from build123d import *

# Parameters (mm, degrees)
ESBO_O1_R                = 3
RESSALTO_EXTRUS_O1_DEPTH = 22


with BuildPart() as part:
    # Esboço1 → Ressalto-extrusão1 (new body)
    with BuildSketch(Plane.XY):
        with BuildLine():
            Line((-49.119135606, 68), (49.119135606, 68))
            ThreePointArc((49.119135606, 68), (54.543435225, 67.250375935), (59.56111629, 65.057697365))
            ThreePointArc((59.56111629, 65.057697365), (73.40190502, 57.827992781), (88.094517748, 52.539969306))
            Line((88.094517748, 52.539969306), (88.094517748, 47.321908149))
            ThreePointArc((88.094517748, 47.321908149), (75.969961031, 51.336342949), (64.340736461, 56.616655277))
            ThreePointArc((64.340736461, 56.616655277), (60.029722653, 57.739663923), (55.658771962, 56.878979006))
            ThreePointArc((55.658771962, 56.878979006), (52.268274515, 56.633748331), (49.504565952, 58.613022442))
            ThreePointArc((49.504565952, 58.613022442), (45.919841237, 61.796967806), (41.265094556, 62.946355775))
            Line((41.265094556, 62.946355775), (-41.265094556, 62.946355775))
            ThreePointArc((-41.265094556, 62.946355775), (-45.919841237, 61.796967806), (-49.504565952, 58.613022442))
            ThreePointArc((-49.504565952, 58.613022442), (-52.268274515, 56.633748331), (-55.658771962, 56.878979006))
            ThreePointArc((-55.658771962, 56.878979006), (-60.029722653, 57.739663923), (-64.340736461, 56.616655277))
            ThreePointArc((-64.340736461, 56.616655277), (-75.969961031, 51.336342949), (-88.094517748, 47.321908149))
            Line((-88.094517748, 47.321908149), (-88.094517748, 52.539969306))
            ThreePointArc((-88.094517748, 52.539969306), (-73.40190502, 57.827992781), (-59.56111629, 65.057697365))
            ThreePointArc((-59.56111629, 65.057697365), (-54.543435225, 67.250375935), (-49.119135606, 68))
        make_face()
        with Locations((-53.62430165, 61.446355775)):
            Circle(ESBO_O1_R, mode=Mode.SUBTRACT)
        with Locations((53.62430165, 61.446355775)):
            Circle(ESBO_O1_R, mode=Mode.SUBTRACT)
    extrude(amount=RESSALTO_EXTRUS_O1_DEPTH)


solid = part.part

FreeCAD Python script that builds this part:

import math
import FreeCAD as App
import Part
import Sketcher
from FreeCAD import Vector
Q = App.Units.Quantity

doc = App.newDocument("Part")
params = doc.addObject("Spreadsheet::Sheet", "Params")
for row, (alias, value) in enumerate([
    ("sketch1_diameter", "6 mm"),
    ("sketch1_radius", "20 mm"),
    ("sketch1_radius2", "115 mm"),
    ("sketch1_radius3", "120 mm"),
    ("sketch1_radius4", "10 mm"),
    ("pad1_length", "22 mm"),
], start=1):
    params.set(f"A{row}", alias)
    params.set(f"B{row}", "=" + value)
    params.setAlias(f"B{row}", alias)

body = doc.addObject("PartDesign::Body", "Body")

# Sketch on XY plane
sketch1 = body.newObject("Sketcher::SketchObject", "Sketch")
sketch1.AttachmentSupport = (doc.getObject("XY_Plane"), [""])
sketch1.MapMode = "FlatFace"
sketch1.addGeometry([
    Part.LineSegment(Vector(49.1, 68, 0), Vector(-49.1, 68, 0)),  # 0
    Part.ArcOfCircle(Part.Circle(Vector(-49.1, 48, 0), Vector(0, 0, 1), 20), math.radians(90), math.radians(121)),  # 1
    Part.ArcOfCircle(Part.Circle(Vector(-119.6, 163.1, 0), Vector(0, 0, 1), 115), math.radians(-74.1), math.radians(-58.53)),  # 2
    Part.LineSegment(Vector(-88.1, 52.5, 0), Vector(-88.1, 47.3, 0)),  # 3
    Part.ArcOfCircle(Part.Circle(Vector(-119.7, 163.1, 0), Vector(0, 0, 1), 120), math.radians(-74.73), math.radians(-62.53)),  # 4
    Part.ArcOfCircle(Part.Circle(Vector(-59.7, 47.7, 0), Vector(0, 0, 1), 10), math.radians(66), math.radians(117)),  # 5
    Part.ArcOfCircle(Part.Circle(Vector(-53.6, 61.4, 0), Vector(0, 0, 1), 5), math.radians(-114), math.radians(-35)),  # 6
    Part.ArcOfCircle(Part.Circle(Vector(-41.3, 52.9, 0), Vector(0, 0, 1), 10), math.radians(90), math.radians(145)),  # 7
    Part.LineSegment(Vector(-41.3, 62.9, 0), Vector(41.3, 62.9, 0)),  # 8
    Part.ArcOfCircle(Part.Circle(Vector(41.3, 52.9, 0), Vector(0, 0, 1), 10), math.radians(35), math.radians(90)),  # 9
    Part.ArcOfCircle(Part.Circle(Vector(53.6, 61.4, 0), Vector(0, 0, 1), 5), math.radians(-145), math.radians(-66)),  # 10
    Part.ArcOfCircle(Part.Circle(Vector(59.7, 47.7, 0), Vector(0, 0, 1), 10), math.radians(63), math.radians(114)),  # 11
    Part.ArcOfCircle(Part.Circle(Vector(119.7, 163.1, 0), Vector(0, 0, 1), 120), math.radians(-117.47), math.radians(-105.27)),  # 12
    Part.LineSegment(Vector(88.1, 47.3, 0), Vector(88.1, 52.5, 0)),  # 13
    Part.ArcOfCircle(Part.Circle(Vector(119.6, 163.1, 0), Vector(0, 0, 1), 115), math.radians(-121.47), math.radians(-105.9)),  # 14
    Part.ArcOfCircle(Part.Circle(Vector(49.1, 48, 0), Vector(0, 0, 1), 20), math.radians(59), math.radians(90)),  # 15
    Part.Circle(Vector(53.6, 61.4, 0), Vector(0, 0, 1), 3),  # 16
    Part.Circle(Vector(-53.6, 61.4, 0), Vector(0, 0, 1), 3),  # 17
], False)
sketch1.addConstraint([
    Sketcher.Constraint("Tangent", 0, 2, 1, 1),
    Sketcher.Constraint("Tangent", 1, 2, 2, 2),
    Sketcher.Constraint("Coincident", 2, 1, 3, 1),
    Sketcher.Constraint("Coincident", 3, 2, 4, 1),
    Sketcher.Constraint("Tangent", 4, 2, 5, 2),
    Sketcher.Constraint("Tangent", 5, 1, 6, 1),
    Sketcher.Constraint("Tangent", 6, 2, 7, 2),
    Sketcher.Constraint("Tangent", 7, 1, 8, 1),
    Sketcher.Constraint("Tangent", 8, 2, 9, 2),
    Sketcher.Constraint("Tangent", 9, 1, 10, 1),
    Sketcher.Constraint("Tangent", 10, 2, 11, 2),
    Sketcher.Constraint("Tangent", 11, 1, 12, 1),
    Sketcher.Constraint("Coincident", 12, 2, 13, 1),
    Sketcher.Constraint("Coincident", 13, 2, 14, 2),
    Sketcher.Constraint("Tangent", 14, 1, 15, 1),
    Sketcher.Constraint("Tangent", 15, 2, 0, 1),
    Sketcher.Constraint("Horizontal", 0),
    Sketcher.Constraint("Vertical", 3),
    Sketcher.Constraint("Horizontal", 8),
    Sketcher.Constraint("Vertical", 13),
    Sketcher.Constraint("Coincident", 16, 3, 10, 3),
    Sketcher.Constraint("Coincident", 17, 3, 6, 3),
    Sketcher.Constraint("Equal", 5, 7),
    Sketcher.Constraint("Equal", 7, 9),
    Sketcher.Constraint("Equal", 6, 10),
    Sketcher.Constraint("Equal", 9, 11),
    Sketcher.Constraint("Equal", 4, 12),
    Sketcher.Constraint("Equal", 2, 14),
    Sketcher.Constraint("Equal", 1, 15),
    Sketcher.Constraint("Equal", 16, 17),
    Sketcher.Constraint("Symmetric", 6, 3, 10, 3, -2),
    Sketcher.Constraint("Symmetric", 4, 3, 12, 3, -2),
    Sketcher.Constraint("Symmetric", 2, 3, 14, 3, -2),
    Sketcher.Constraint("Horizontal", 3, 2, 12, 2),
    Sketcher.Constraint("Diameter", 16, Q("6 mm")),
    Sketcher.Constraint("Radius", 1, Q("20 mm")),
    Sketcher.Constraint("Radius", 2, Q("115 mm")),
    Sketcher.Constraint("Radius", 4, Q("120 mm")),
    Sketcher.Constraint("Radius", 5, Q("10 mm")),
    Sketcher.Constraint("Radius", 6, Q("5 mm")),
    Sketcher.Constraint("DistanceY", -1, 1, 1, 3, Q("48 mm")),
    Sketcher.Constraint("DistanceY", 7, 3, 6, 3, Q("8.5 mm")),
    Sketcher.Constraint("DistanceX", 0, 2, 0, 1, Q("98.238271 mm")),
    Sketcher.Constraint("DistanceX", 8, 1, 8, 2, Q("82.530189 mm")),
    Sketcher.Constraint("DistanceY", 3, 2, 3, 1, Q("5.218061 mm")),
    Sketcher.Constraint("DistanceY", 6, 3, 2, 3, Q("101.693101 mm")),
    Sketcher.Constraint("DistanceX", 2, 3, 9, 3, Q("160.8676 mm")),
    Sketcher.Constraint("DistanceX", 2, 1, 1, 2, Q("28.533401 mm")),
    Sketcher.Constraint("DistanceY", 11, 1, 10, 3, Q("4.8297 mm")),
])
sketch1.setExpression("Constraints[34]", "Params.sketch1_diameter")
sketch1.setExpression("Constraints[35]", "Params.sketch1_radius")
sketch1.setExpression("Constraints[36]", "Params.sketch1_radius2")
sketch1.setExpression("Constraints[37]", "Params.sketch1_radius3")
sketch1.setExpression("Constraints[38]", "Params.sketch1_radius4")
pad1 = body.newObject("PartDesign::Pad", "Pad")
pad1.Profile = sketch1
pad1.setExpression("Length", "Params.pad1_length")

doc.recompute()
